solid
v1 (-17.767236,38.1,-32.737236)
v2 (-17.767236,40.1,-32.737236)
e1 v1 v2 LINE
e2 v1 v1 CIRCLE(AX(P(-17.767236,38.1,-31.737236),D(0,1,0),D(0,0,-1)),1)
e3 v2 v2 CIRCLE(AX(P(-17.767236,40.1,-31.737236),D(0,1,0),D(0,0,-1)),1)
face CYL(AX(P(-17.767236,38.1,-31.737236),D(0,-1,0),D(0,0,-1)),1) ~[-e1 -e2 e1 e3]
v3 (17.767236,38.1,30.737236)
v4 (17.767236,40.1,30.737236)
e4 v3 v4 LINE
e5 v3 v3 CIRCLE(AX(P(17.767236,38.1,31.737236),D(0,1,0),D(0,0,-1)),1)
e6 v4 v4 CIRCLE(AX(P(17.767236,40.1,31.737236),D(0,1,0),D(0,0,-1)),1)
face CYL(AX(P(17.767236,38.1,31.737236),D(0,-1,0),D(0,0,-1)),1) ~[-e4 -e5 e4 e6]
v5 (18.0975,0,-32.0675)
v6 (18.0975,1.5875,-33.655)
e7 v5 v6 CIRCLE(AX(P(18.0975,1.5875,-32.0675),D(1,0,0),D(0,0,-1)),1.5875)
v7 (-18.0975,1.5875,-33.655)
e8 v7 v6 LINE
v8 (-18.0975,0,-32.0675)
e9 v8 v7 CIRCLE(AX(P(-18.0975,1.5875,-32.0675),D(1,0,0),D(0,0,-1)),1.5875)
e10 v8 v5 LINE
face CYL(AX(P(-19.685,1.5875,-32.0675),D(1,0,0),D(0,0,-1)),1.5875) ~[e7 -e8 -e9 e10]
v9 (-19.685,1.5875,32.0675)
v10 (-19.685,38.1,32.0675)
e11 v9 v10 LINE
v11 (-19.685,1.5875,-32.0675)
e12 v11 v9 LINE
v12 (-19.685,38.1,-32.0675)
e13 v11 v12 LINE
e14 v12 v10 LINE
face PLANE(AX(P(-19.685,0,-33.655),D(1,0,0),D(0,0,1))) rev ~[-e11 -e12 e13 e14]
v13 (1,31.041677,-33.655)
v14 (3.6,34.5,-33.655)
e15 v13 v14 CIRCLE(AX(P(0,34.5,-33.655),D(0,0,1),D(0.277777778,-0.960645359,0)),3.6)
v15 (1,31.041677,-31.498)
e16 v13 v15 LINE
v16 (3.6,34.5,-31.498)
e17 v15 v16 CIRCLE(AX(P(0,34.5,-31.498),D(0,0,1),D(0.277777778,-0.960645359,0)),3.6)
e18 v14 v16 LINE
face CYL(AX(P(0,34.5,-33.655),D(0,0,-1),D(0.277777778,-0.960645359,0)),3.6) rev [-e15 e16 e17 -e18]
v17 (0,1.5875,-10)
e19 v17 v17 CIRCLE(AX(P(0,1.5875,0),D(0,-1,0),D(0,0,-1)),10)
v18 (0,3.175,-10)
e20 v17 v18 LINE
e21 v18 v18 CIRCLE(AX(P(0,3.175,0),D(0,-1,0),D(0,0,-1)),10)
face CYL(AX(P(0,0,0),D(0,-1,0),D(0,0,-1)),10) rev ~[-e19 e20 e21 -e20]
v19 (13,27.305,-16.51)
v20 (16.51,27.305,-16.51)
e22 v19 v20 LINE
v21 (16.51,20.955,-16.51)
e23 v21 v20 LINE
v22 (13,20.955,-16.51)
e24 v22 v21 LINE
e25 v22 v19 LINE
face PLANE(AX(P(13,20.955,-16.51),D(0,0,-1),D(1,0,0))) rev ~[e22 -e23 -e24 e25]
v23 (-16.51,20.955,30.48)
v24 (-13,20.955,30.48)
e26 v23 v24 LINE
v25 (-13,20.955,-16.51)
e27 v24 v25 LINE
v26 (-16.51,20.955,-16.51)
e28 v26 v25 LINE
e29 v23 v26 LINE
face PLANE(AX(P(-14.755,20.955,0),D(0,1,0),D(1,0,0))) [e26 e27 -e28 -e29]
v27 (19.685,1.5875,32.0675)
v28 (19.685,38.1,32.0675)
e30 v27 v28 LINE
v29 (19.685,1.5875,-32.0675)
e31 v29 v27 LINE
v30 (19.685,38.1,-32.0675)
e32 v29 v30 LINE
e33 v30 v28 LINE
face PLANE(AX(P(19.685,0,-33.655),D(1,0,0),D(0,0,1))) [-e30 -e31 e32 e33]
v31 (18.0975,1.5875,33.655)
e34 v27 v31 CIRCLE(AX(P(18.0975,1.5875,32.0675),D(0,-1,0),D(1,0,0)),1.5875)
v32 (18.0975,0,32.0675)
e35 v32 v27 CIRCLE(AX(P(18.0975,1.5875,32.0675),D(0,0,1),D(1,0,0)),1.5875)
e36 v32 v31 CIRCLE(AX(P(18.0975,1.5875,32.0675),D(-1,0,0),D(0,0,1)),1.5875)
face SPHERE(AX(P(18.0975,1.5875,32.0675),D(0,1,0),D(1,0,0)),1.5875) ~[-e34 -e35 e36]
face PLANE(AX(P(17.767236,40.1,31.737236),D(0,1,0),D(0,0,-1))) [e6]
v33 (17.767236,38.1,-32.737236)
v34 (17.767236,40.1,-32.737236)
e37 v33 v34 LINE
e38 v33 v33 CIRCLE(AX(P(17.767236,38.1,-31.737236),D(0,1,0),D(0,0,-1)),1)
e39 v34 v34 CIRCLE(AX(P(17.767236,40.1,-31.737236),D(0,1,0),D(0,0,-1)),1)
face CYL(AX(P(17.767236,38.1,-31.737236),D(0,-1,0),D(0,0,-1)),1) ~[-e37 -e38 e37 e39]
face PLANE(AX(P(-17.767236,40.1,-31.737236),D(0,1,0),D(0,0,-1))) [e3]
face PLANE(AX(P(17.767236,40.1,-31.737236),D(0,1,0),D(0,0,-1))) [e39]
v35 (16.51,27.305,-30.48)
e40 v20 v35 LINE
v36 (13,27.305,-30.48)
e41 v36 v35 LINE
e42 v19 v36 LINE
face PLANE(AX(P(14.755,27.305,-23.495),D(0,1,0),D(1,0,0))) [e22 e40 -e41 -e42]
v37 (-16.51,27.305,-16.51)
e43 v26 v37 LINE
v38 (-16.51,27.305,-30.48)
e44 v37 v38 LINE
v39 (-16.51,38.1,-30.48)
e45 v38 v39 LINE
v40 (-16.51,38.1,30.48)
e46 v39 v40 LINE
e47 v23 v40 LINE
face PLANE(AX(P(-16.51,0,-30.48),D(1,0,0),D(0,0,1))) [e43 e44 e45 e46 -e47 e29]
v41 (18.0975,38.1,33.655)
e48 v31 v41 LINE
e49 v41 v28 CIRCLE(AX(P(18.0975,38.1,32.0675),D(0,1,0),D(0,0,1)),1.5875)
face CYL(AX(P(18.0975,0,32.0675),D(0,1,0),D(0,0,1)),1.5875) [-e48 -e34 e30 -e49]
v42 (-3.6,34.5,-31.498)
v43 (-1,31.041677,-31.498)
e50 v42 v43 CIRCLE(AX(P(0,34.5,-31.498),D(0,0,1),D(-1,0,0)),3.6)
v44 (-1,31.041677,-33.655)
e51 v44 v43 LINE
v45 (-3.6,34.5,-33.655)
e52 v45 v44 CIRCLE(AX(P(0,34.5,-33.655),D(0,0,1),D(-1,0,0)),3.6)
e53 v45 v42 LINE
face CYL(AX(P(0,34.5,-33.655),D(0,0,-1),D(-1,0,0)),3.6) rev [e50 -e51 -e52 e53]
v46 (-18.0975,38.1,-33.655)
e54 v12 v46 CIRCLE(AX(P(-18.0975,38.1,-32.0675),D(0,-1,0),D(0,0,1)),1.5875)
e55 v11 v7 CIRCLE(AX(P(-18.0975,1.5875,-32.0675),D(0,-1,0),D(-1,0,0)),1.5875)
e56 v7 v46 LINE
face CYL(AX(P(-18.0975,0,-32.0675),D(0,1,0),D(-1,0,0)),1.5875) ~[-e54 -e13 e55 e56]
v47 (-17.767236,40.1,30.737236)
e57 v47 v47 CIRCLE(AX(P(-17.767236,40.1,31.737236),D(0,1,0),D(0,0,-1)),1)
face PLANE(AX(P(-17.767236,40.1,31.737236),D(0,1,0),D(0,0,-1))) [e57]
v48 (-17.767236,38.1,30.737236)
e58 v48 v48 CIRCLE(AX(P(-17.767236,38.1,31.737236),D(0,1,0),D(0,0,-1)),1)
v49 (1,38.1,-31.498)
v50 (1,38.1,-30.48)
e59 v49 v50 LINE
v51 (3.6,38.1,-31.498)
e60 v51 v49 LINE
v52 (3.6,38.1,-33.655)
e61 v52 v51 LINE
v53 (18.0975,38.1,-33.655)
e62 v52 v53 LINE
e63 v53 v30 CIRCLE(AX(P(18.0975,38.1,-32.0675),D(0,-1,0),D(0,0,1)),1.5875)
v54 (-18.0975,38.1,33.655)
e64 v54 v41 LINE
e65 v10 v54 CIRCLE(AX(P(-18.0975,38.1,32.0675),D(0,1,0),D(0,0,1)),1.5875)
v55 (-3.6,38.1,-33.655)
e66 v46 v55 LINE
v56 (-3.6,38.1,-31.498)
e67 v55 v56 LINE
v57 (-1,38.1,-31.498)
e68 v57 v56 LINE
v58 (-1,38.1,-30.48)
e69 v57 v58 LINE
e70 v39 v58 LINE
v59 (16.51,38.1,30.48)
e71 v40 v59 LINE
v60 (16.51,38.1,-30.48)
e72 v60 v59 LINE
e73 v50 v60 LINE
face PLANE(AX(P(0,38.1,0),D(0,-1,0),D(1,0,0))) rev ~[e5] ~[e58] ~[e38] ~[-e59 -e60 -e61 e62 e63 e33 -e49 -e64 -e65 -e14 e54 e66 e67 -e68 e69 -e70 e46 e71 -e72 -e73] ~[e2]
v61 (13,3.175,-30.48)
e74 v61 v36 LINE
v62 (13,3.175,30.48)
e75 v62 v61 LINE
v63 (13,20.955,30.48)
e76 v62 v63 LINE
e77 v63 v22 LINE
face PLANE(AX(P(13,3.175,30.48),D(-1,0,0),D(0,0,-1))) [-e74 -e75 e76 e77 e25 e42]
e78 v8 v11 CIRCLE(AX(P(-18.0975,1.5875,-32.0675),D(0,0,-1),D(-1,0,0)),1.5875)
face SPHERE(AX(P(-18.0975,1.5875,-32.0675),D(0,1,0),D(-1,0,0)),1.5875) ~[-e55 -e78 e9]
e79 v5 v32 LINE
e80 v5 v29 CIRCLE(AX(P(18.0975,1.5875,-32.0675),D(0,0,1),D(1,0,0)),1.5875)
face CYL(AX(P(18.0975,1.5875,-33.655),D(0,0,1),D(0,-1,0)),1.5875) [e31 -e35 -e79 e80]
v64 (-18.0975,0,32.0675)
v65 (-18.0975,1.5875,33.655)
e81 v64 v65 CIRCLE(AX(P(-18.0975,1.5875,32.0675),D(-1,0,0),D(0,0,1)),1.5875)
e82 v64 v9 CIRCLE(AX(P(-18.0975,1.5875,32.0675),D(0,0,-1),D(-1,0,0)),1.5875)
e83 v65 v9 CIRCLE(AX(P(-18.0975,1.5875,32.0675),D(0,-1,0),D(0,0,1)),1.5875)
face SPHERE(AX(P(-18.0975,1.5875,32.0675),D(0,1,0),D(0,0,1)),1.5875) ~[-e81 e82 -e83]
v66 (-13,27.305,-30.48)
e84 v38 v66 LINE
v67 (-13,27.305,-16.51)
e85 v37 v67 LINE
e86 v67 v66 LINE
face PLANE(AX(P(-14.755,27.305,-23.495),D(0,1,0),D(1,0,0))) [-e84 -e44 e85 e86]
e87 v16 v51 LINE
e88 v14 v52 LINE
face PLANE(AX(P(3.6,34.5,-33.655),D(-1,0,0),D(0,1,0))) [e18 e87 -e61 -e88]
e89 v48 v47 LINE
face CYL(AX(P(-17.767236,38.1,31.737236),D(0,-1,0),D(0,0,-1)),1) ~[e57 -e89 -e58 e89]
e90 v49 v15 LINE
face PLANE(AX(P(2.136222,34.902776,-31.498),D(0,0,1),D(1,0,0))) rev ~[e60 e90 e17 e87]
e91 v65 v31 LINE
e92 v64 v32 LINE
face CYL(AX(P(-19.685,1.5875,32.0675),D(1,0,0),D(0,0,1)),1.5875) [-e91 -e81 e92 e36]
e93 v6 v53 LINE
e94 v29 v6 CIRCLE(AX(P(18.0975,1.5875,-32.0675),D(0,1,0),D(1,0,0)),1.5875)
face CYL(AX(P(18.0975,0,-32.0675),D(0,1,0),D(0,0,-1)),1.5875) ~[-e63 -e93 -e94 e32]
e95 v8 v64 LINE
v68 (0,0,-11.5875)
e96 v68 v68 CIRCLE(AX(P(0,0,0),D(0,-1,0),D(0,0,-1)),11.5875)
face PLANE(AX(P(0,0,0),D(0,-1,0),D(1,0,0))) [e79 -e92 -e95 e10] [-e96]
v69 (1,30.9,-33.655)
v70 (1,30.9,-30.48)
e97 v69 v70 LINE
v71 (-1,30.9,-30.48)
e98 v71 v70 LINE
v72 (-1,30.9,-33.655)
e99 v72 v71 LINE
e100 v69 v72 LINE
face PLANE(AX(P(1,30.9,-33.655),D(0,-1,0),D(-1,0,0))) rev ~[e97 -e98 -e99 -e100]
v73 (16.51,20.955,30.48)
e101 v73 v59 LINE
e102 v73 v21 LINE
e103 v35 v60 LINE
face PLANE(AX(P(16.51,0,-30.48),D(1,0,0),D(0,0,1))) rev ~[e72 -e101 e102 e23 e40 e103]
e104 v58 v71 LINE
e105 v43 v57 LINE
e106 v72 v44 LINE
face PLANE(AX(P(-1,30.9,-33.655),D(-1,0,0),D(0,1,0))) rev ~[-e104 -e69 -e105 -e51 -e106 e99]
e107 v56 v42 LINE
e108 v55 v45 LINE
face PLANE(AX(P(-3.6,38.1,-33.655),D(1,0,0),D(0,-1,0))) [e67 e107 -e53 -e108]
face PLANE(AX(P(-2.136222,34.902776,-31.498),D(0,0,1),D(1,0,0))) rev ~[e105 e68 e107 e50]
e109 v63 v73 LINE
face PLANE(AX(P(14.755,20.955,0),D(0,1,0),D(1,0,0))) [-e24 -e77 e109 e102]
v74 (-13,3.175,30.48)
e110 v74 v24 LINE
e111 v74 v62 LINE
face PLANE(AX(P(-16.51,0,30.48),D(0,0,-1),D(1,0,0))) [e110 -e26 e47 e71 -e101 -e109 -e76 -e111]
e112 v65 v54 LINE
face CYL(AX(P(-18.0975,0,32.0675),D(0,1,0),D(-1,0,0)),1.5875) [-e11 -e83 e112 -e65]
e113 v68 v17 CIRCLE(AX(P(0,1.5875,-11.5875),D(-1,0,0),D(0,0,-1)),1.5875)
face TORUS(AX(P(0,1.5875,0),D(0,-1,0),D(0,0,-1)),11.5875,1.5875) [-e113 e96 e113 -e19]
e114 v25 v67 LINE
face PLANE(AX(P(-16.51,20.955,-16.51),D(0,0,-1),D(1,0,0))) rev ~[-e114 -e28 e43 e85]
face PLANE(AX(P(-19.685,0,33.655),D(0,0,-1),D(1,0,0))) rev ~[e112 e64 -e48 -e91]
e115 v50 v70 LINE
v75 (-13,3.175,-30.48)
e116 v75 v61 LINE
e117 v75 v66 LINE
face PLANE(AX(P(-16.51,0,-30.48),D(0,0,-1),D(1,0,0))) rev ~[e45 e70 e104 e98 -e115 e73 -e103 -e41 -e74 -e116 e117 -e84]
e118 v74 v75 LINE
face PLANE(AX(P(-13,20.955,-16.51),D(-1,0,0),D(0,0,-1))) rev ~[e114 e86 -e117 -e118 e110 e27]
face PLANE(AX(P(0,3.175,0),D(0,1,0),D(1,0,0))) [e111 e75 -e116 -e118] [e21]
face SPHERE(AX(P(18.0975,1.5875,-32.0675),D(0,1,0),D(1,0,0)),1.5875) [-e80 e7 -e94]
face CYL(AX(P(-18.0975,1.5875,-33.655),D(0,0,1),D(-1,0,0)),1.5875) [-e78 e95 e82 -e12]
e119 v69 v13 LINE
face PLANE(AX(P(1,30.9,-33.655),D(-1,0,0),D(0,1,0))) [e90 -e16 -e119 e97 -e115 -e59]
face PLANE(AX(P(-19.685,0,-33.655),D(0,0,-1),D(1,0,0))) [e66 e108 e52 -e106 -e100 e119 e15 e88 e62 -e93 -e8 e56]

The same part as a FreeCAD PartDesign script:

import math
import FreeCAD as App
import Part
import Sketcher
from FreeCAD import Vector
Q = App.Units.Quantity


def edges_at(feature, points):
    """Names of the edges that pass closest to the given points."""
    edges = feature.Shape.Edges
    near = lambda p: min(range(len(edges)), key=lambda i: edges[i].distToShape(Part.Vertex(*p))[0])
    return sorted({f"Edge{near(p) + 1}" for p in points})


def add_polygon(sketch, points):
    """Adds a closed chain of lines whose ends are joined by coincident constraints."""
    first, n = sketch.GeometryCount, len(points)
    for a, b in zip(points, points[1:] + points[:1]):
        sketch.addGeometry(Part.LineSegment(App.Vector(*a, 0), App.Vector(*b, 0)), False)
    for i in range(n):
        sketch.addConstraint(Sketcher.Constraint("Coincident", first + i, 2, first + (i + 1) % n, 1))

doc = App.newDocument("Part")
params = doc.addObject("Spreadsheet::Sheet", "Params")
for row, (alias, value) in enumerate([
    ("sketch1_width", "1.3 in"),
    ("sketch1_height", "2.4 in"),
    ("pad1_length", "0.125 in"),
    ("sketch2_height", "2.4 in"),
    ("pad2_length", "0.7 in"),
    ("sketch3_width", "1.3 in"),
    ("sketch3_height", "2.4 in"),
    ("sketch3_width2", "1.55 in"),
    ("sketch3_height2", "2.65 in"),
    ("pad3_length", "1.5 in"),
    ("fillet_radius", "0.0625 in"),
    ("pad4_length", "2 mm"),
    ("pocket3_length", "2.157 mm"),
    ("sketch8_height", "0.55 in"),
    ("pad5_length", "0.25 in"),
], start=1):
    params.set(f"A{row}", alias)
    params.set(f"B{row}", "=" + value)
    params.setAlias(f"B{row}", alias)

body = doc.addObject("PartDesign::Body", "Body")

sketch1 = doc.addObject("Sketcher::SketchObject", "Sketch")
body.addObject(sketch1)
sketch1.AttachmentSupport = (doc.XZ_Plane, [""])
sketch1.MapMode = "FlatFace"
add_polygon(sketch1, [(-17, -30), (-17, 30), (17, 30), (17, -30)])
sketch1.addConstraint([
    Sketcher.Constraint("Vertical", 0),
    Sketcher.Constraint("Horizontal", 1),
    Sketcher.Constraint("Vertical", 2),
    Sketcher.Constraint("Horizontal", 3),
    Sketcher.Constraint("Symmetric", 0, 2, 2, 2, -1, 1),
    Sketcher.Constraint("DistanceX", 1, 1, 1, 2, Q("1.3 in")),
    Sketcher.Constraint("DistanceY", 0, 1, 0, 2, Q("2.4 in")),
])
sketch1.setExpression("Constraints[9]", "Params.sketch1_width")
sketch1.setExpression("Constraints[10]", "Params.sketch1_height")
pad1 = doc.addObject("PartDesign::Pad", "Pad")
body.addObject(pad1)
pad1.Profile = sketch1
pad1.setExpression("Length", "Params.pad1_length")
pad1.Reversed = True

sketch2 = doc.addObject("Sketcher::SketchObject", "Sketch001")
body.addObject(sketch2)
sketch2.AttachmentSupport = (doc.XZ_Plane, [""])
sketch2.MapMode = "FlatFace"
sketch2.AttachmentOffset = App.Placement(Vector(0, 0, -0.125 * 25.4), App.Rotation())
add_polygon(sketch2, [(-16.5, -30.5), (-16.5, 30.5), (-13, 30.5), (-13, -30.5)])
add_polygon(sketch2, [(13, -30.5), (13, 30.5), (16.5, 30.5), (16.5, -30.5)])
sketch2.addConstraint([
    Sketcher.Constraint("Vertical", 0),
    Sketcher.Constraint("Horizontal", 1),
    Sketcher.Constraint("Vertical", 2),
    Sketcher.Constraint("Horizontal", 3),
    Sketcher.Constraint("Vertical", 4),
    Sketcher.Constraint("Horizontal", 5),
    Sketcher.Constraint("Vertical", 6),
    Sketcher.Constraint("Horizontal", 7),
    Sketcher.Constraint("Symmetric", 2, 2, 4, 2, -1, 1),
    Sketcher.Constraint("Symmetric", 0, 2, 6, 2, -1, 1),
    Sketcher.Constraint("Horizontal", 1, 2, 4, 2),
    Sketcher.Constraint("DistanceY", 0, 1, 0, 2, Q("2.4 in")),
    Sketcher.Constraint("DistanceX", 0, 2, 5, 2, Q("1.3 in")),
    Sketcher.Constraint("DistanceX", 1, 1, 1, 2, Q("3.51 mm")),
])
sketch2.setExpression("Constraints[19]", "Params.sketch2_height")
pad2 = doc.addObject("PartDesign::Pad", "Pad001")
body.addObject(pad2)
pad2.Profile = sketch2
pad2.setExpression("Length", "Params.pad2_length")
pad2.Reversed = True

sketch3 = doc.addObject("Sketcher::SketchObject", "Sketch002")
body.addObject(sketch3)
sketch3.AttachmentSupport = (doc.XZ_Plane, [""])
sketch3.MapMode = "FlatFace"
add_polygon(sketch3, [(-20, 34), (-20, -34), (20, -34), (20, 34)])
add_polygon(sketch3, [(17, -30), (-17, -30), (-17, 30), (17, 30)])
sketch3.addConstraint([
    Sketcher.Constraint("Vertical", 0),
    Sketcher.Constraint("Horizontal", 1),
    Sketcher.Constraint("Vertical", 2),
    Sketcher.Constraint("Horizontal", 3),
    Sketcher.Constraint("Horizontal", 4),
    Sketcher.Constraint("Vertical", 5),
    Sketcher.Constraint("Horizontal", 6),
    Sketcher.Constraint("Vertical", 7),
    Sketcher.Constraint("Symmetric", 0, 2, 2, 2, -1, 1),
    Sketcher.Constraint("Symmetric", 4, 2, 6, 2, -1, 1),
    Sketcher.Constraint("DistanceX", 4, 2, 4, 1, Q("1.3 in")),
    Sketcher.Constraint("DistanceY", 5, 1, 5, 2, Q("2.4 in")),
    Sketcher.Constraint("DistanceX", 1, 1, 1, 2, Q("1.55 in")),
    Sketcher.Constraint("DistanceY", 0, 2, 0, 1, Q("2.65 in")),
])
sketch3.setExpression("Constraints[18]", "Params.sketch3_width")
sketch3.setExpression("Constraints[19]", "Params.sketch3_height")
sketch3.setExpression("Constraints[20]", "Params.sketch3_width2")
sketch3.setExpression("Constraints[21]", "Params.sketch3_height2")
pad3 = doc.addObject("PartDesign::Pad", "Pad002")
body.addObject(pad3)
pad3.Profile = sketch3
pad3.setExpression("Length", "Params.pad3_length")
pad3.Reversed = True

sketch4 = doc.addObject("Sketcher::SketchObject", "Sketch003")
body.addObject(sketch4)
sketch4.AttachmentSupport = (doc.XZ_Plane, [""])
sketch4.MapMode = "FlatFace"
sketch4.addGeometry(Part.Circle(Vector(0, 0, 0), Vector(0, 0, 1), 10), False)
sketch4.addConstraint([
    Sketcher.Constraint("Coincident", 0, 3, -1, 1),
    Sketcher.Constraint("Diameter", 0, Q("20 mm")),
])
pocket1 = doc.addObject("PartDesign::Pocket", "Pocket")
body.addObject(pocket1)
pocket1.Profile = sketch4
pocket1.Type = "UpToFirst"
doc.recompute()

fillet = doc.addObject("PartDesign::Fillet", "Fillet")
body.addObject(fillet)
fillet.Base = (pocket1, edges_at(pocket1, [
    (19.685, 19.05, 33.655),
    (19.685, 19.05, -33.655),
    (-19.685, 19.05, -33.655),
    (-19.685, 19.05, 33.655),
    (19.685, 0, 0),
    (0, 0, 33.655),
    (-19.685, 0, 0),
    (0, 0, -33.655),
    (0, 0, 10),
]))
fillet.setExpression("Radius", "Params.fillet_radius")

sketch5 = doc.addObject("Sketcher::SketchObject", "Sketch004")
body.addObject(sketch5)
sketch5.AttachmentSupport = (doc.XZ_Plane, [""])
sketch5.MapMode = "FlatFace"
sketch5.AttachmentOffset = App.Placement(Vector(0, 0, -1.5 * 25.4), App.Rotation())
sketch5.addGeometry([
    Part.Circle(Vector(-17.8, -31.7, 0), Vector(0, 0, 1), 1),
    Part.Circle(Vector(-17.8, 31.7, 0), Vector(0, 0, 1), 1),
    Part.Circle(Vector(17.8, -31.7, 0), Vector(0, 0, 1), 1),
    Part.Circle(Vector(17.8, 31.7, 0), Vector(0, 0, 1), 1),
], False)
sketch5.addConstraint([
    Sketcher.Constraint("Equal", 0, 1),
    Sketcher.Constraint("Equal", 1, 2),
    Sketcher.Constraint("Equal", 2, 3),
    Sketcher.Constraint("Symmetric", 1, 3, 2, 3, -1, 1),
    Sketcher.Constraint("Symmetric", 0, 3, 3, 3, -1, 1),
    Sketcher.Constraint("Symmetric", 0, 3, 2, 3, -2),
    Sketcher.Constraint("Diameter", 0, Q("2 mm")),
    Sketcher.Constraint("DistanceY", 0, 3, 1, 3, Q("63.474472 mm")),
    Sketcher.Constraint("DistanceX", 0, 3, 2, 3, Q("35.534472 mm")),
])
pad4 = doc.addObject("PartDesign::Pad", "Pad003")
body.addObject(pad4)
pad4.Profile = sketch5
pad4.setExpression("Length", "Params.pad4_length")
pad4.Reversed = True

sketch6 = doc.addObject("Sketcher::SketchObject", "Sketch005")
body.addObject(sketch6)
sketch6.AttachmentSupport = (doc.XY_Plane, [""])
sketch6.MapMode = "FlatFace"
sketch6.AttachmentOffset = App.Placement(Vector(0, 0, -1.325 * 25.4), App.Rotation())
add_polygon(sketch6, [(1, 38.1), (1, 30.9), (-1, 30.9), (-1, 38.1)])
sketch6.addConstraint([
    Sketcher.Constraint("Vertical", 0),
    Sketcher.Constraint("Horizontal", 1),
    Sketcher.Constraint("Vertical", 2),
    Sketcher.Constraint("Horizontal", 3),
    Sketcher.Constraint("DistanceY", -1, 1, 2, 2, Q("1.5 in")),
    Sketcher.Constraint("DistanceX", 1, 2, 1, 1, Q("2 mm")),
    Sketcher.Constraint("DistanceY", 0, 2, 0, 1, Q("7.2 mm")),
    Sketcher.Constraint("DistanceX", -1, 1, 0, 2, Q("1 mm")),
])
pocket2 = doc.addObject("PartDesign::Pocket", "Pocket001")
body.addObject(pocket2)
pocket2.Profile = sketch6
pocket2.Type = "UpToFirst"
pocket2.Reversed = True

sketch7 = doc.addObject("Sketcher::SketchObject", "Sketch006")
body.addObject(sketch7)
sketch7.AttachmentSupport = (doc.XY_Plane, [""])
sketch7.MapMode = "FlatFace"
sketch7.AttachmentOffset = App.Placement(Vector(0, 0, -1.325 * 25.4), App.Rotation())
sketch7.addGeometry([
    Part.ArcOfCircle(Part.Circle(Vector(0, 34.5, 0), Vector(0, 0, 1), 3.6), math.radians(-74), math.radians(0)),
    Part.LineSegment(Vector(3.6, 34.5, 0), Vector(3.6, 38.1, 0)),
    Part.LineSegment(Vector(3.6, 38.1, 0), Vector(1, 38.1, 0)),
    Part.LineSegment(Vector(1, 38.1, 0), Vector(1, 31, 0)),
    Part.ArcOfCircle(Part.Circle(Vector(0, 34.5, 0), Vector(0, 0, 1), 3.6), math.radians(180), math.radians(254)),
    Part.LineSegment(Vector(-1, 31, 0), Vector(-1, 38.1, 0)),
    Part.LineSegment(Vector(-1, 38.1, 0), Vector(-3.6, 38.1, 0)),
    Part.LineSegment(Vector(-3.6, 38.1, 0), Vector(-3.6, 34.5, 0)),
], False)
sketch7.addConstraint([
    Sketcher.Constraint("Tangent", 0, 2, 1, 1),
    Sketcher.Constraint("Coincident", 1, 2, 2, 1),
    Sketcher.Constraint("Coincident", 2, 2, 3, 1),
    Sketcher.Constraint("Coincident", 3, 2, 0, 1),
    Sketcher.Constraint("Coincident", 4, 2, 5, 1),
    Sketcher.Constraint("Coincident", 5, 2, 6, 1),
    Sketcher.Constraint("Coincident", 6, 2, 7, 1),
    Sketcher.Constraint("Tangent", 7, 2, 4, 1),
    Sketcher.Constraint("Vertical", 1),
    Sketcher.Constraint("Horizontal", 2),
    Sketcher.Constraint("Vertical", 3),
    Sketcher.Constraint("Vertical", 5),
    Sketcher.Constraint("Horizontal", 6),
    Sketcher.Constraint("Vertical", 7),
    Sketcher.Constraint("Coincident", 4, 3, 0, 3),
    Sketcher.Constraint("Equal", 0, 4),
    Sketcher.Constraint("Symmetric", 3, 2, 4, 2, -2),
    Sketcher.Constraint("Horizontal", 2, 2, 5, 2),
    Sketcher.Constraint("DistanceY", -1, 1, 1, 2, Q("1.5 in")),
    Sketcher.Constraint("Radius", 0, Q("3.6 mm")),
    Sketcher.Constraint("DistanceX", 2, 2, 2, 1, Q("2.6 mm")),
    Sketcher.Constraint("DistanceY", 1, 1, 1, 2, Q("3.6 mm")),
])
pocket3 = doc.addObject("PartDesign::Pocket", "Pocket002")
body.addObject(pocket3)
pocket3.Profile = sketch7
pocket3.setExpression("Length", "Params.pocket3_length")
pocket3.Reversed = True

sketch8 = doc.addObject("Sketcher::SketchObject", "Sketch007")
body.addObject(sketch8)
sketch8.AttachmentSupport = (doc.XZ_Plane, [""])
sketch8.MapMode = "FlatFace"
sketch8.AttachmentOffset = App.Placement(Vector(0, 0, -0.825 * 25.4), App.Rotation())
add_polygon(sketch8, [(-16.5, -30.5), (-16.5, -16.5), (-13, -16.5), (-13, -30.5)])
add_polygon(sketch8, [(13, -30.5), (13, -16.5), (16.5, -16.5), (16.5, -30.5)])
sketch8.addConstraint([
    Sketcher.Constraint("Vertical", 0),
    Sketcher.Constraint("Horizontal", 1),
    Sketcher.Constraint("Vertical", 2),
    Sketcher.Constraint("Horizontal", 3),
    Sketcher.Constraint("Vertical", 4),
    Sketcher.Constraint("Horizontal", 5),
    Sketcher.Constraint("Vertical", 6),
    Sketcher.Constraint("Horizontal", 7),
    Sketcher.Constraint("Symmetric", 1, 2, 4, 2, -2),
    Sketcher.Constraint("Symmetric", 3, 2, 6, 2, -2),
    Sketcher.Constraint("DistanceY", 0, 1, 0, 2, Q("0.55 in")),
    Sketcher.Constraint("DistanceY", 2, 2, -1, 1, Q("1.2 in")),
    Sketcher.Constraint("DistanceX", 0, 2, 5, 2, Q("1.3 in")),
    Sketcher.Constraint("DistanceX", 1, 1, 1, 2, Q("3.51 mm")),
])
sketch8.setExpression("Constraints[18]", "Params.sketch8_height")
pad5 = doc.addObject("PartDesign::Pad", "Pad004")
body.addObject(pad5)
pad5.Profile = sketch8
pad5.setExpression("Length", "Params.pad5_length")
pad5.Reversed = True

doc.recompute()
